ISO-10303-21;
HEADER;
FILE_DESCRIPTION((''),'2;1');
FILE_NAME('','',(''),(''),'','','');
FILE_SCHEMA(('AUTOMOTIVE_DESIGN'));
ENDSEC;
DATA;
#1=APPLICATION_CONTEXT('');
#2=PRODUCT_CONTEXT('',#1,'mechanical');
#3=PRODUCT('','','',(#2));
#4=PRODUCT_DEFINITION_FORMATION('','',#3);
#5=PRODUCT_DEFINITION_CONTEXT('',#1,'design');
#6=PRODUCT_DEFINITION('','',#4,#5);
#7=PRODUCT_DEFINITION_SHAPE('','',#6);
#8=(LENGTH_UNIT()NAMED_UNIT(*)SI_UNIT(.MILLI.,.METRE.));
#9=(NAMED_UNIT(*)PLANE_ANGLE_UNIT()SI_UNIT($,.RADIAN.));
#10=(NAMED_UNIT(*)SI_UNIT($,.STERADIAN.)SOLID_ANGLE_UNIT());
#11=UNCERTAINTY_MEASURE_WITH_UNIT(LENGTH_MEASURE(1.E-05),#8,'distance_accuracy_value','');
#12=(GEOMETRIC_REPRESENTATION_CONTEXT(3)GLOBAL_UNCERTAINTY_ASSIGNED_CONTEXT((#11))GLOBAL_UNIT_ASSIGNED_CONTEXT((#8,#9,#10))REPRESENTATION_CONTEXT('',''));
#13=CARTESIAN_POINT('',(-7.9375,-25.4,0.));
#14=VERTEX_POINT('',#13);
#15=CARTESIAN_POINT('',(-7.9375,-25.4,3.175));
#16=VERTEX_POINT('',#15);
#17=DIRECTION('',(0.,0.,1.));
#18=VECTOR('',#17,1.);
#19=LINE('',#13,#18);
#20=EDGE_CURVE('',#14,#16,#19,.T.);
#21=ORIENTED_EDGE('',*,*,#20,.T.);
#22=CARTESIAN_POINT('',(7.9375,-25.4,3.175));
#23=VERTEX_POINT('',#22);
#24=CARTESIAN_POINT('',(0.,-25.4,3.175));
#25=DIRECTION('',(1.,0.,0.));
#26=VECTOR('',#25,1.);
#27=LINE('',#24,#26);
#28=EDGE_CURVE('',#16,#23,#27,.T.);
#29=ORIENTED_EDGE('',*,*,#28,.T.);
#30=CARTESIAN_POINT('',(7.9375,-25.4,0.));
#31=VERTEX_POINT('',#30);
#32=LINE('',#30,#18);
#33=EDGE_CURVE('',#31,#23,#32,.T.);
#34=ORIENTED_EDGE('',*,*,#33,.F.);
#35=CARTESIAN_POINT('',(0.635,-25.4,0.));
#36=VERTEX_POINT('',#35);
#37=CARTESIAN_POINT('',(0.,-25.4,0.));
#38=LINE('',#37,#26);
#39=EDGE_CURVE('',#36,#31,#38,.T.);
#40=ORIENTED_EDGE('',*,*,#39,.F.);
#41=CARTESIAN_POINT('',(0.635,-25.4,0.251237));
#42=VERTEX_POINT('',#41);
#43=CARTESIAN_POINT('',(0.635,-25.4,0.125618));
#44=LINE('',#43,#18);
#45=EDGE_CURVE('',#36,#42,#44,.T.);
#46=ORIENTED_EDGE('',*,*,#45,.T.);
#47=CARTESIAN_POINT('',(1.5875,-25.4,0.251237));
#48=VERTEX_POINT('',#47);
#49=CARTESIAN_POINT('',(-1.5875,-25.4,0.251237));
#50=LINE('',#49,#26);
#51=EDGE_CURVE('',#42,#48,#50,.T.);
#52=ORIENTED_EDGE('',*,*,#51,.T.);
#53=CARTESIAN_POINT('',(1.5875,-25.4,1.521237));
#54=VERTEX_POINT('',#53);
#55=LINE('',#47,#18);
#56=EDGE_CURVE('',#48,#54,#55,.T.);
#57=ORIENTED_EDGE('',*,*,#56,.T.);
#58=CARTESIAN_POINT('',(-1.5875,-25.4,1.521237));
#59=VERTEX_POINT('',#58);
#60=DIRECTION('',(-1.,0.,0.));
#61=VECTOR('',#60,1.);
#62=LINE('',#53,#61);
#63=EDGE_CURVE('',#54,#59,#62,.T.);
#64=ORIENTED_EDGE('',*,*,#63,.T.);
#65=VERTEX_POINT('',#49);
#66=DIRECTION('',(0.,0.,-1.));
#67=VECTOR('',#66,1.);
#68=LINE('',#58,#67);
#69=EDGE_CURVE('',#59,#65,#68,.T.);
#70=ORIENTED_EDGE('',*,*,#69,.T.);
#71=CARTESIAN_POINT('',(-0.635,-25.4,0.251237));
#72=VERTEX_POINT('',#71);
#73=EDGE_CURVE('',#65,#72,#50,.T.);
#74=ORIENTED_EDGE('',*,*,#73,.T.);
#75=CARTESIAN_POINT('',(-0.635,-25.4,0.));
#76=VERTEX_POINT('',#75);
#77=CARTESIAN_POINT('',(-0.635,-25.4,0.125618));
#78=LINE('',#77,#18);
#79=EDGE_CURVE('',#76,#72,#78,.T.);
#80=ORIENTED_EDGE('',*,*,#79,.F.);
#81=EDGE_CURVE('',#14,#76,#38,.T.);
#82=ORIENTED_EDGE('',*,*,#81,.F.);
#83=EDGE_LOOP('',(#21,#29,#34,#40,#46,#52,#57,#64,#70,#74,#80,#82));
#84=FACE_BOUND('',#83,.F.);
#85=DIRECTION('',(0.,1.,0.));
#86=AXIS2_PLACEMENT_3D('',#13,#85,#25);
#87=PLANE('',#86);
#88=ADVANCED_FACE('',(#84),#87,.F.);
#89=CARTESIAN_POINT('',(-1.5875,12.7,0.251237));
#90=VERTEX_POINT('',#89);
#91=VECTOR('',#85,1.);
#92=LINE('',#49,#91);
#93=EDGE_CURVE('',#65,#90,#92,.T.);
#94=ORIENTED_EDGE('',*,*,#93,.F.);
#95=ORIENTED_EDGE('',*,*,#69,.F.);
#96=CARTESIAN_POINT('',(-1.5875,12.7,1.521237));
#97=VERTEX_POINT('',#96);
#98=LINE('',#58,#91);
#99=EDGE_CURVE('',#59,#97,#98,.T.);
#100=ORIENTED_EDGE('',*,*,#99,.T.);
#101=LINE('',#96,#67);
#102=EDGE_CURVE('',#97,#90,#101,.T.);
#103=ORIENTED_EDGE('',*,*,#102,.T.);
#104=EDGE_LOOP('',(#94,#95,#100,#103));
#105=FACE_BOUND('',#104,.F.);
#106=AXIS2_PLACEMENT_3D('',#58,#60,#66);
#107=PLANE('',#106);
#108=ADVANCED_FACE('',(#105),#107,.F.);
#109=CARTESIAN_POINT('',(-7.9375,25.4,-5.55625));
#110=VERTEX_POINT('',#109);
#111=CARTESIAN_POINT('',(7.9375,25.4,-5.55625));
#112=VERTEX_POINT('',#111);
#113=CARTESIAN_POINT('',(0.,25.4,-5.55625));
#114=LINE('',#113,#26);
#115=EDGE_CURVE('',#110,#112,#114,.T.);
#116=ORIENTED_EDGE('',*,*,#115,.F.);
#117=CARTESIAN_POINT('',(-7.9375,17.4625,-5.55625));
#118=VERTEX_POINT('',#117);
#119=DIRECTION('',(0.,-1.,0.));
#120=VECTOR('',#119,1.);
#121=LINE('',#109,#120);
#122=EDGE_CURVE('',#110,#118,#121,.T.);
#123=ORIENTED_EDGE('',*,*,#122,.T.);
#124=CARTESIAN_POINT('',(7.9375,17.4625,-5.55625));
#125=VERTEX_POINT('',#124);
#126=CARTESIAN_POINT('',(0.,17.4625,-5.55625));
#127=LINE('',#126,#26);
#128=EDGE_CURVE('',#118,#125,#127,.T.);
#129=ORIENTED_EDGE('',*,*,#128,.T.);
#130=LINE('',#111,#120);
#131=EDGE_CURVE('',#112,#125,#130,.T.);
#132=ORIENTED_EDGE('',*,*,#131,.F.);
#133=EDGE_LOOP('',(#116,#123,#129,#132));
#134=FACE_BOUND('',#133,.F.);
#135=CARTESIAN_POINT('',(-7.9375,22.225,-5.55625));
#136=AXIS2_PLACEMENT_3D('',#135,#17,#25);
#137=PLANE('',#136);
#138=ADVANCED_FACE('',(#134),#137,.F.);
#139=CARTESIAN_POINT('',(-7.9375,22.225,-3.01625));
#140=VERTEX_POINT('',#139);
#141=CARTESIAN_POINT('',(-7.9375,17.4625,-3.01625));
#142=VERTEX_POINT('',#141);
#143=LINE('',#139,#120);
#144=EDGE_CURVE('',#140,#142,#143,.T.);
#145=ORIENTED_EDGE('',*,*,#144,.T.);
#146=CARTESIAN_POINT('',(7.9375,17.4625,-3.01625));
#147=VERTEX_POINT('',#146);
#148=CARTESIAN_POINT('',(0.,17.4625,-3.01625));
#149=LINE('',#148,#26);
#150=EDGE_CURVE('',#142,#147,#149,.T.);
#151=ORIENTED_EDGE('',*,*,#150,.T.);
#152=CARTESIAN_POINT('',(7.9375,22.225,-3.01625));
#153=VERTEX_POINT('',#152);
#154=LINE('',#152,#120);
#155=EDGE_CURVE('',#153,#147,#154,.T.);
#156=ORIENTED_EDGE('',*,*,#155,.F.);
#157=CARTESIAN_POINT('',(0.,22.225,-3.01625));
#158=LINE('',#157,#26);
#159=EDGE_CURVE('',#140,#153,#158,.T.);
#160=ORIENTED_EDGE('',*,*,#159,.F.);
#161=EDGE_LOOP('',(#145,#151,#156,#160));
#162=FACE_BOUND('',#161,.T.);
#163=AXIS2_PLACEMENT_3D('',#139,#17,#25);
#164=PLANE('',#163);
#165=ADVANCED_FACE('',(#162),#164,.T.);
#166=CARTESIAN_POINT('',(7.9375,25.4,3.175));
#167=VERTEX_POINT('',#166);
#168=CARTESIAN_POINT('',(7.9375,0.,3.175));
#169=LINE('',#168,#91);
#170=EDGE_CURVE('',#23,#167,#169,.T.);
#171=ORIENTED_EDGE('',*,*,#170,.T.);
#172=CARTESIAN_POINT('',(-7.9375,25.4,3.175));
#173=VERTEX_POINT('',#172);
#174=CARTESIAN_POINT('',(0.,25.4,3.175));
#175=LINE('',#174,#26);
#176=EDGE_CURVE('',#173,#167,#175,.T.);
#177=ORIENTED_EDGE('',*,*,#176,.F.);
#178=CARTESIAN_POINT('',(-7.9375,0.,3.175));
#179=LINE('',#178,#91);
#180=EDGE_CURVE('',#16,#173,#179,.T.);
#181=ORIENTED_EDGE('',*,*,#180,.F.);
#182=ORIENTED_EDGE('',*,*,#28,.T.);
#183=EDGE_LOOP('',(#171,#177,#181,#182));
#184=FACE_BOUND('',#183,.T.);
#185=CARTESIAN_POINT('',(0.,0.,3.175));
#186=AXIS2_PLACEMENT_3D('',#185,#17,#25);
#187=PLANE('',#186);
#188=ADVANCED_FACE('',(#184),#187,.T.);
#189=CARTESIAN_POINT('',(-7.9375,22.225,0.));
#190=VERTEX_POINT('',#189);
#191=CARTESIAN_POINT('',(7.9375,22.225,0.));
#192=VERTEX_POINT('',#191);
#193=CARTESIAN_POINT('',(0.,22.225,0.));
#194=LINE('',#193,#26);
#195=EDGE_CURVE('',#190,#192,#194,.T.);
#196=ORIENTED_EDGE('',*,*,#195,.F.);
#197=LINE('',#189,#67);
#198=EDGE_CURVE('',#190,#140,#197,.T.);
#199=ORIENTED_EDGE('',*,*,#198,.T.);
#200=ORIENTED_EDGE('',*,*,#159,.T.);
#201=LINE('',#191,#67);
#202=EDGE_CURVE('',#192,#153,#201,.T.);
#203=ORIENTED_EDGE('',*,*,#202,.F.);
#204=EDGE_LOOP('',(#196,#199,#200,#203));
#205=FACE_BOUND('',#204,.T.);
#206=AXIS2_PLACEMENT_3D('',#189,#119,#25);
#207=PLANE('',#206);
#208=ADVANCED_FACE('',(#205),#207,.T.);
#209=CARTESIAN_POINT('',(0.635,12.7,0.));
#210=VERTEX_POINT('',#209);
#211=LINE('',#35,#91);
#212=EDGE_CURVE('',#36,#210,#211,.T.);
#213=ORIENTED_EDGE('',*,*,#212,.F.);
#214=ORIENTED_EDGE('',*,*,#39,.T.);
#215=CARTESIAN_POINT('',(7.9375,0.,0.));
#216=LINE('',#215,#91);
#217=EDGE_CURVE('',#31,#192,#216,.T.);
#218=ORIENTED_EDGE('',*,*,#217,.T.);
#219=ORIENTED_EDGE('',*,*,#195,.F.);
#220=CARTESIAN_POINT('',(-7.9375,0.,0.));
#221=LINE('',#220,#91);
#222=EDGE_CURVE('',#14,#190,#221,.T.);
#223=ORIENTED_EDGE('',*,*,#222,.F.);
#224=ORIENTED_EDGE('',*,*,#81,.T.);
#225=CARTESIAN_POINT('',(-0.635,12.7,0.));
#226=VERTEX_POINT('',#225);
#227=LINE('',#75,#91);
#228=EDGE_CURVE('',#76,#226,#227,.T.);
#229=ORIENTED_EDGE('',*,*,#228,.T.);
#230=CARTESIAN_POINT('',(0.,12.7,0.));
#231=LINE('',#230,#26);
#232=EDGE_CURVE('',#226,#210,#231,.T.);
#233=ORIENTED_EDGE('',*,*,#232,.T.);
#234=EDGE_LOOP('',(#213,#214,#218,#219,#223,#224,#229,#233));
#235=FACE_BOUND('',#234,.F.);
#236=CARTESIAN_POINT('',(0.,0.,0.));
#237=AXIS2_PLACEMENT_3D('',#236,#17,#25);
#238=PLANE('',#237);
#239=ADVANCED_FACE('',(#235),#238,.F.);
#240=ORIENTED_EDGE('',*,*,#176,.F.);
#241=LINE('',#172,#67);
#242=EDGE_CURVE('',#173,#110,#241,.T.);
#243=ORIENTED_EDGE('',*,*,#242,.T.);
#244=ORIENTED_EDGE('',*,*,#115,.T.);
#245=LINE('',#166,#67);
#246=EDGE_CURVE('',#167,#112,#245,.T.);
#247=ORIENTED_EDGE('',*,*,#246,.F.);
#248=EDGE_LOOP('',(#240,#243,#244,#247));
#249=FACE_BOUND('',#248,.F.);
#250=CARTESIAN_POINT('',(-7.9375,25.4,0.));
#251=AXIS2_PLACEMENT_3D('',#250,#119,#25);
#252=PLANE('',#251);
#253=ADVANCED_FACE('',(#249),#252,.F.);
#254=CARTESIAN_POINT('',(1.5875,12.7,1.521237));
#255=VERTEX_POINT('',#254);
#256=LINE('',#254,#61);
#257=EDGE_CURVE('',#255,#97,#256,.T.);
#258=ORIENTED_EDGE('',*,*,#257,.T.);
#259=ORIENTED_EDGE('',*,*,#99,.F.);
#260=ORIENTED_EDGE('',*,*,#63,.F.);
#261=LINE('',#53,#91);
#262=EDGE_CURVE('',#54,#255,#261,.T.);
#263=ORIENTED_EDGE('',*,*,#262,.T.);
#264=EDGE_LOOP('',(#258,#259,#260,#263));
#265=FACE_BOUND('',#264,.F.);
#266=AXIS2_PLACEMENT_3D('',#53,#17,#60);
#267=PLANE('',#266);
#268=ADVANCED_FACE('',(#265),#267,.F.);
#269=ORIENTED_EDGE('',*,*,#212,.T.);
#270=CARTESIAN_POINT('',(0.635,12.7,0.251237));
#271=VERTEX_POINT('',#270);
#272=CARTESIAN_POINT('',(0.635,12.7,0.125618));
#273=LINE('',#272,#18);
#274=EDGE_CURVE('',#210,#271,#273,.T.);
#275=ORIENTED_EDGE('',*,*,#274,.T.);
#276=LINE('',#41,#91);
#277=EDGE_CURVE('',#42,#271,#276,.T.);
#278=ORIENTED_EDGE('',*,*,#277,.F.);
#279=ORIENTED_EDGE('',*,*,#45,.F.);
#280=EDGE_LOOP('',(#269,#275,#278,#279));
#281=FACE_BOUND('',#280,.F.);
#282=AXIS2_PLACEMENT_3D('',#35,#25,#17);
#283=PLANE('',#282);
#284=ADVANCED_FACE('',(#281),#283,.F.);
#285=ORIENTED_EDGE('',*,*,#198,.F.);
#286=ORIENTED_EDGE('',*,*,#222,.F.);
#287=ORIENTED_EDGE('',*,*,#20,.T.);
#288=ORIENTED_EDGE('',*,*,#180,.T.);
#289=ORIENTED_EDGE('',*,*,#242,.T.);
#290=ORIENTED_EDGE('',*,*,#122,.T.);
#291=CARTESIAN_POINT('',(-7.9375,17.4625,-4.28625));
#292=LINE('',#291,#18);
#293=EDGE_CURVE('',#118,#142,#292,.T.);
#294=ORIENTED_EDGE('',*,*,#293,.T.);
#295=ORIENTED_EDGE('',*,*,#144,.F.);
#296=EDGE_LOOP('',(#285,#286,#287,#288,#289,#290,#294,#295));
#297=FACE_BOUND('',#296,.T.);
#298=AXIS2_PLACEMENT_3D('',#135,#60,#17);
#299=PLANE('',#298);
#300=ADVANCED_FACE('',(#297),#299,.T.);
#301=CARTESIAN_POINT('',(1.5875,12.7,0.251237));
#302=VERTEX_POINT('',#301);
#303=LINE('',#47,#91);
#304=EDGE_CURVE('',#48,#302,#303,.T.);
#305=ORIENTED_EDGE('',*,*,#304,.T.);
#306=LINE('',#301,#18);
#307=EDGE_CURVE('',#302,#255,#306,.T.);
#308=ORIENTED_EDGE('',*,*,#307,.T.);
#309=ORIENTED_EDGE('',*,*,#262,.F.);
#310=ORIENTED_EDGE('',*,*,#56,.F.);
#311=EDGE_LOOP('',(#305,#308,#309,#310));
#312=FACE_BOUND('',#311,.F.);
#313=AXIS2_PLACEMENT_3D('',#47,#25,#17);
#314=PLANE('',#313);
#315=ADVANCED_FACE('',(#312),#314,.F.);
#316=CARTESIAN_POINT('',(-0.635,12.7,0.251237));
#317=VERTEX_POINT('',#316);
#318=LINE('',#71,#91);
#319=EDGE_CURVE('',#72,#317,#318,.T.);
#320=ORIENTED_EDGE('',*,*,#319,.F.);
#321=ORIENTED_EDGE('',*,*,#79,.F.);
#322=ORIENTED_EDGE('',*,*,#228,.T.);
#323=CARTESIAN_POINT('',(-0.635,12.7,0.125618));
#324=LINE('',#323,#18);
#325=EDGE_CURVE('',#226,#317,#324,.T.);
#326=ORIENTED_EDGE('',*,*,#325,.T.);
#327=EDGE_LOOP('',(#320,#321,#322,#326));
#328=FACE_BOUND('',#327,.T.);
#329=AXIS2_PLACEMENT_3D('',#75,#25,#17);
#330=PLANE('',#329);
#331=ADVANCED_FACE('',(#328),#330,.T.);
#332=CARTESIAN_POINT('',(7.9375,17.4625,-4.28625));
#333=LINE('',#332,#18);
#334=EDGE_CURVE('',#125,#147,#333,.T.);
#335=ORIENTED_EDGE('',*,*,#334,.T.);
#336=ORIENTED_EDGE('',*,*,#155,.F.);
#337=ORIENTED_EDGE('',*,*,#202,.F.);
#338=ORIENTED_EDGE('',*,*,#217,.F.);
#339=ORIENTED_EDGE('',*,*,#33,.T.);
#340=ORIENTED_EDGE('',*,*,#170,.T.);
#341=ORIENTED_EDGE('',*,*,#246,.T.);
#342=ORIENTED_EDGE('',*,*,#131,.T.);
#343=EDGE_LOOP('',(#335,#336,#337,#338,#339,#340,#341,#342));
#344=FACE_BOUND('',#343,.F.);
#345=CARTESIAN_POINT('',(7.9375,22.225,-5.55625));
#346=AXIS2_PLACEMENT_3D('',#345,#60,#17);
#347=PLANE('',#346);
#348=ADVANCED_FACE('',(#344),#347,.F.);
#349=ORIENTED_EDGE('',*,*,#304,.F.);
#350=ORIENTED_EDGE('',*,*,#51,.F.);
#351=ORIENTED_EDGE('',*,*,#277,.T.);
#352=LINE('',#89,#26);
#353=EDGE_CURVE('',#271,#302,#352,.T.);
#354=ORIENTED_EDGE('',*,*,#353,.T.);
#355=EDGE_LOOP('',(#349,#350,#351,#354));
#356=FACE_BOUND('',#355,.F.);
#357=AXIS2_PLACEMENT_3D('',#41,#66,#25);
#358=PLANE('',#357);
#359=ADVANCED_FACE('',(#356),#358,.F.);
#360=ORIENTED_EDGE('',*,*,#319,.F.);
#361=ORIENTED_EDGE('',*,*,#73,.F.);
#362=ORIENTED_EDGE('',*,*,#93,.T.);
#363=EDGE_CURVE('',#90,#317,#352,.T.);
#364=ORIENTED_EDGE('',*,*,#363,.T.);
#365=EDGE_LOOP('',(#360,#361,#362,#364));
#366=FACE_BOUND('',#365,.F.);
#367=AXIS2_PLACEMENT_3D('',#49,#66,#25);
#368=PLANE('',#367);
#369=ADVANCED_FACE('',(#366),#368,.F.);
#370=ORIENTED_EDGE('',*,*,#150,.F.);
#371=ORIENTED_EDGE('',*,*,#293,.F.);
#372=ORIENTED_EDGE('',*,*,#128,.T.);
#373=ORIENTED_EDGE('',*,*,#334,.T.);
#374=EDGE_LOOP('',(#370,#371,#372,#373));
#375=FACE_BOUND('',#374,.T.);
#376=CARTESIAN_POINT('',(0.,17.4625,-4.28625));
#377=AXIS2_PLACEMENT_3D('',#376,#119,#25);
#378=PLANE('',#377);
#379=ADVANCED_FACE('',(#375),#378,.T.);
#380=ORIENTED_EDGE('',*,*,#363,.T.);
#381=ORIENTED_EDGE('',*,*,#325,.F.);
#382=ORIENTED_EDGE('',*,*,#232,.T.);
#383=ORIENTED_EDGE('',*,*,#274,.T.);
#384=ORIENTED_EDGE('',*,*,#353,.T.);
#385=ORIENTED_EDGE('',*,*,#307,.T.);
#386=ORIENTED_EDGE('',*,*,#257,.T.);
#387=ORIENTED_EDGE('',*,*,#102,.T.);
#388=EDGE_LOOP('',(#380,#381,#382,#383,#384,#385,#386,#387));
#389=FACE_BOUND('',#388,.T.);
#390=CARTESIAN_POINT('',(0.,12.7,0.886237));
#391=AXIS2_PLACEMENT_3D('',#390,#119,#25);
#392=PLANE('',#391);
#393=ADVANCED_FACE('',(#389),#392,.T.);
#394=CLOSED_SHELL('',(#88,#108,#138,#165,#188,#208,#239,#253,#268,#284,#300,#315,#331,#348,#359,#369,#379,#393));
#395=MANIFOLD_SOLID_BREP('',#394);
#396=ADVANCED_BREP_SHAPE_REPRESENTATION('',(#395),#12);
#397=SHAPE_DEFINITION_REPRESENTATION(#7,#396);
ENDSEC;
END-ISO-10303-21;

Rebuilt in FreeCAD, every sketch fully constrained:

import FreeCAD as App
import Part
import Sketcher

V = App.Vector
Q = App.Units.Quantity


def add_polygon(sketch, points):
    """Adds a closed chain of lines whose ends are joined by coincident constraints."""
    first, n = sketch.GeometryCount, len(points)
    for a, b in zip(points, points[1:] + points[:1]):
        sketch.addGeometry(Part.LineSegment(App.Vector(*a, 0), App.Vector(*b, 0)), False)
    for i in range(n):
        sketch.addConstraint(Sketcher.Constraint("Coincident", first + i, 2, first + (i + 1) % n, 1))

doc = App.newDocument("Part")
body = doc.addObject("PartDesign::Body", "Body")

# Sketch on XY plane
sketch1 = body.newObject("Sketcher::SketchObject", "Sketch")
sketch1.AttachmentSupport = (doc.getObject("XY_Plane"), [""])
sketch1.MapMode = "FlatFace"
add_polygon(sketch1, [(-8, 25), (-8, -25), (8, -25), (8, 25)])  # lines 0-3
sketch1.addConstraint([
    Sketcher.Constraint("Vertical", 0),
    Sketcher.Constraint("Horizontal", 1),
    Sketcher.Constraint("Vertical", 2),
    Sketcher.Constraint("Horizontal", 3),
    Sketcher.Constraint("Symmetric", 0, 2, 2, 2, -1, 1),
    Sketcher.Constraint("DistanceY", 0, 2, 0, 1, Q("2 in")),
    Sketcher.Constraint("DistanceX", 1, 1, 1, 2, Q("0.625 in")),
])
pad1 = body.newObject("PartDesign::Pad", "Pad")
pad1.Profile = sketch1
pad1.Length = Q("0.125 in")

# Sketch on XY plane
sketch2 = body.newObject("Sketcher::SketchObject", "Sketch001")
sketch2.AttachmentSupport = (doc.getObject("XY_Plane"), [""])
sketch2.MapMode = "FlatFace"
add_polygon(sketch2, [(-7.9, 22.2), (-7.9, 25.4), (7.9, 25.4), (7.9, 22.2)])  # lines 0-3
sketch2.addConstraint([
    Sketcher.Constraint("Vertical", 0),
    Sketcher.Constraint("Horizontal", 1),
    Sketcher.Constraint("Vertical", 2),
    Sketcher.Constraint("Horizontal", 3),
    Sketcher.Constraint("DistanceY", -1, 1, 0, 2, Q("1 in")),
    Sketcher.Constraint("DistanceX", 1, 1, 1, 2, Q("0.625 in")),
    Sketcher.Constraint("DistanceY", 0, 1, 0, 2, Q("0.125 in")),
    Sketcher.Constraint("DistanceX", 0, 2, -1, 1, Q("0.3125 in")),
])
pad2 = body.newObject("PartDesign::Pad", "Pad001")
pad2.Profile = sketch2
pad2.Length = Q("0.21875 in")
pad2.Reversed = True

# Sketch on XZ plane
sketch3 = body.newObject("Sketcher::SketchObject", "Sketch002")
sketch3.AttachmentSupport = (doc.getObject("XZ_Plane"), [""])
sketch3.MapMode = "FlatFace"
sketch3.AttachmentOffset = App.Placement(V(0, 0, -0.875 * 25.4), App.Rotation())
add_polygon(sketch3, [(-7.9, -3), (-7.9, -5.6), (7.9, -5.6), (7.9, -3)])  # lines 0-3
sketch3.addConstraint([
    Sketcher.Constraint("Vertical", 0),
    Sketcher.Constraint("Horizontal", 1),
    Sketcher.Constraint("Vertical", 2),
    Sketcher.Constraint("Horizontal", 3),
    Sketcher.Constraint("DistanceY", 0, 2, 0, 1, Q("0.1 in")),
    Sketcher.Constraint("DistanceX", 1, 1, 1, 2, Q("0.625 in")),
    Sketcher.Constraint("DistanceX", 0, 2, -1, 1, Q("0.3125 in")),
    Sketcher.Constraint("DistanceY", 0, 2, -1, 1, Q("0.21875 in")),
])
pad3 = body.newObject("PartDesign::Pad", "Pad002")
pad3.Profile = sketch3
pad3.Length = Q("0.1875 in")

# Sketch on XZ plane
sketch4 = body.newObject("Sketcher::SketchObject", "Sketch003")
sketch4.AttachmentSupport = (doc.getObject("XZ_Plane"), [""])
sketch4.MapMode = "FlatFace"
sketch4.AttachmentOffset = App.Placement(V(0, 0, 1 * 25.4), App.Rotation())
add_polygon(sketch4, [(1.59, 0.25), (1.59, 1.52), (-1.59, 1.52), (-1.59, 0.25), (-0.64, 0.25), (-0.64, 0), (0.64, 0), (0.64, 0.25)])  # lines 0-7
sketch4.addConstraint([
    Sketcher.Constraint("Vertical", 0),
    Sketcher.Constraint("Horizontal", 1),
    Sketcher.Constraint("Vertical", 2),
    Sketcher.Constraint("Horizontal", 3),
    Sketcher.Constraint("Vertical", 4),
    Sketcher.Constraint("Horizontal", 5),
    Sketcher.Constraint("Vertical", 6),
    Sketcher.Constraint("Horizontal", 7),
    Sketcher.Constraint("Symmetric", 4, 2, 5, 2, -1, 1),
    Sketcher.Constraint("Symmetric", 2, 2, 7, 2, -2),
    Sketcher.Constraint("Equal", 5, 0),
    Sketcher.Constraint("DistanceX", 5, 1, 5, 2, Q("0.05 in")),
    Sketcher.Constraint("DistanceX", 1, 2, 1, 1, Q("0.125 in")),
    Sketcher.Constraint("DistanceY", 4, 2, 4, 1, 0.251237),
])
pocket1 = body.newObject("PartDesign::Pocket", "Pocket")
pocket1.Profile = sketch4
pocket1.Length = Q("1.5 in")

doc.recompute()
